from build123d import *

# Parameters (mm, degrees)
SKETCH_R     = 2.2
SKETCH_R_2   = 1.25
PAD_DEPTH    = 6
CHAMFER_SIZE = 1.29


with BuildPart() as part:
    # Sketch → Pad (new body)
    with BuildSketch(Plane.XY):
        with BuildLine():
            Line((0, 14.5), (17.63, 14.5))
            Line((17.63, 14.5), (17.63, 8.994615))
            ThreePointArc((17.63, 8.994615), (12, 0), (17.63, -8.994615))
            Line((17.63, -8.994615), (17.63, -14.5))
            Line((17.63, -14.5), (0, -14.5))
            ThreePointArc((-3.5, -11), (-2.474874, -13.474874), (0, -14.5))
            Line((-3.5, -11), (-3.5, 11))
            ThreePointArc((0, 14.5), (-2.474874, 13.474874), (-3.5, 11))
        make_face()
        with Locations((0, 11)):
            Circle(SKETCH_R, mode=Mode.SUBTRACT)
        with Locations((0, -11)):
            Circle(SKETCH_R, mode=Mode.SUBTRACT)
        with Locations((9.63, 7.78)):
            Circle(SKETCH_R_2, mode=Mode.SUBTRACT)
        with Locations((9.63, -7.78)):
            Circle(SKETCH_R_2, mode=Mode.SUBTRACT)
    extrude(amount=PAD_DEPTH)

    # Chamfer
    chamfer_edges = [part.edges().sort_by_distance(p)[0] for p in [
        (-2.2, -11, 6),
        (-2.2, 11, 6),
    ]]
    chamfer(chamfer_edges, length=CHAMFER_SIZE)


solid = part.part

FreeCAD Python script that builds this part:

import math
import FreeCAD as App
import Part
import Sketcher

V = App.Vector


def edges_at(feature, points):
    """Names of the edges that pass closest to the given points."""
    edges = feature.Shape.Edges
    near = lambda p: min(range(len(edges)), key=lambda i: edges[i].distToShape(Part.Vertex(*p))[0])
    return sorted({f"Edge{near(p) + 1}" for p in points})

doc = App.newDocument("Part")
body = doc.addObject("PartDesign::Body", "Body")

sketch1 = body.newObject("Sketcher::SketchObject", "Sketch")
sketch1.AttachmentSupport = (doc.getObject("XY_Plane"), [""])
sketch1.MapMode = "FlatFace"
sketch1.addGeometry(Part.LineSegment(V(17.63, 14.5, 0), V(0, 14.5, 0)), False)
sketch1.addGeometry(Part.ArcOfCircle(Part.Circle(V(-0.000001, 11.000001, 0), V(0, 0, 1), 3.499999), math.radians(89.999985), math.radians(180.000015)), False)
sketch1.addGeometry(Part.LineSegment(V(-3.5, 11, 0), V(-3.5, -11, 0)), False)
sketch1.addGeometry(Part.ArcOfCircle(Part.Circle(V(-0.000001, -11.000001, 0), V(0, 0, 1), 3.499999), math.radians(179.999985), math.radians(270.000015)), False)
sketch1.addGeometry(Part.LineSegment(V(0, -14.5, 0), V(17.63, -14.5, 0)), False)
sketch1.addGeometry(Part.LineSegment(V(17.63, -14.5, 0), V(17.63, -8.994615, 0)), False)
sketch1.addGeometry(Part.ArcOfCircle(Part.Circle(V(22, 0, 0), V(0, 0, 1), 10), math.radians(115.912625), math.radians(244.087375)), False)
sketch1.addGeometry(Part.LineSegment(V(17.63, 8.994615, 0), V(17.63, 14.5, 0)), False)
sketch1.addGeometry(Part.Circle(V(9.63, -7.78, 0), V(0, 0, 1), 1.25), False)
sketch1.addGeometry(Part.Circle(V(0, -11, 0), V(0, 0, 1), 2.2), False)
sketch1.addGeometry(Part.Circle(V(9.63, 7.78, 0), V(0, 0, 1), 1.25), False)
sketch1.addGeometry(Part.Circle(V(0, 11, 0), V(0, 0, 1), 2.2), False)
sketch1.addConstraint(Sketcher.Constraint("Tangent", 0, 2, 1, 1))
sketch1.addConstraint(Sketcher.Constraint("Tangent", 1, 2, 2, 1))
sketch1.addConstraint(Sketcher.Constraint("Tangent", 2, 2, 3, 1))
sketch1.addConstraint(Sketcher.Constraint("Tangent", 3, 2, 4, 1))
sketch1.addConstraint(Sketcher.Constraint("Coincident", 4, 2, 5, 1))
sketch1.addConstraint(Sketcher.Constraint("Coincident", 5, 2, 6, 2))
sketch1.addConstraint(Sketcher.Constraint("Coincident", 6, 1, 7, 1))
sketch1.addConstraint(Sketcher.Constraint("Coincident", 7, 2, 0, 1))
sketch1.addConstraint(Sketcher.Constraint("Horizontal", 0))
sketch1.addConstraint(Sketcher.Constraint("Vertical", 2))
sketch1.addConstraint(Sketcher.Constraint("Horizontal", 4))
sketch1.addConstraint(Sketcher.Constraint("Vertical", 5))
sketch1.addConstraint(Sketcher.Constraint("Vertical", 7))
sketch1.addConstraint(Sketcher.Constraint("Coincident", 9, 3, 3, 3))
sketch1.addConstraint(Sketcher.Constraint("Coincident", 11, 3, 1, 3))
sketch1.addConstraint(Sketcher.Constraint("Equal", 1, 3))
sketch1.addConstraint(Sketcher.Constraint("Equal", 8, 10))
sketch1.addConstraint(Sketcher.Constraint("Equal", 9, 11))
sketch1.addConstraint(Sketcher.Constraint("Symmetric", 1, 3, 3, 3, -1, 1))
sketch1.addConstraint(Sketcher.Constraint("Symmetric", 8, 3, 10, 3, -1))
sketch1.addConstraint(Sketcher.Constraint("Symmetric", 5, 2, 6, 1, -1))
sketch1.addConstraint(Sketcher.Constraint("Radius", 6, 10.0))
sketch1.addConstraint(Sketcher.Constraint("Diameter", 8, 2.5))
sketch1.addConstraint(Sketcher.Constraint("Diameter", 9, 4.4))
sketch1.addConstraint(Sketcher.Constraint("Radius", 1, 3.499999))
sketch1.addConstraint(Sketcher.Constraint("DistanceY", 2, 2, 2, 1, 22.0))
sketch1.addConstraint(Sketcher.Constraint("DistanceX", -1, 1, 6, 3, 22.0))
sketch1.addConstraint(Sketcher.Constraint("DistanceX", 8, 3, 4, 2, 8.0))
sketch1.addConstraint(Sketcher.Constraint("DistanceX", 0, 2, 0, 1, 17.63))
sketch1.addConstraint(Sketcher.Constraint("DistanceY", 8, 3, -1, 1, 7.78))
pad1 = body.newObject("PartDesign::Pad", "Pad")
pad1.Profile = sketch1
pad1.Length = 6
doc.recompute()

chamfer = body.newObject("PartDesign::Chamfer", "Chamfer")
chamfer.Base = (pad1, edges_at(pad1, [(-2.2, -11, 6), (-2.2, 11, 6)]))
chamfer.Size = 1.29

doc.recompute()
